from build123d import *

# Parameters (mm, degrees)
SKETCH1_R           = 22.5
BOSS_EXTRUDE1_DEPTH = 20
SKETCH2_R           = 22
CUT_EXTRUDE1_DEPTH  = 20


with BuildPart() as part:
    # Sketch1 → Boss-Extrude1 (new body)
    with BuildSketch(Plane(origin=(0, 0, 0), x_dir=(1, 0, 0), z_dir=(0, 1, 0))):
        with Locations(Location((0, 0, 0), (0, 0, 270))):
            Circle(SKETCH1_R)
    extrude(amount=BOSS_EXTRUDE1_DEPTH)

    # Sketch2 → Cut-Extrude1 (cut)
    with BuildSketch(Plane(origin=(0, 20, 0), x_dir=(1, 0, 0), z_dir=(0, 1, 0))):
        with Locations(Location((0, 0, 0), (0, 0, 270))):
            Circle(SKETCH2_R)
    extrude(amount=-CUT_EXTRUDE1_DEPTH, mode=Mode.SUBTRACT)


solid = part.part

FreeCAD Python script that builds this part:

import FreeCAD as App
import Part
import Sketcher
Q = App.Units.Quantity

doc = App.newDocument("Part")
body = doc.addObject("PartDesign::Body", "Body")

# Sketch on XZ plane
sketch1 = body.newObject("Sketcher::SketchObject", "Sketch")
sketch1.AttachmentSupport = (doc.getObject("XZ_Plane"), [""])
sketch1.MapMode = "FlatFace"
sketch1.addGeometry(Part.Circle(App.Vector(0, 0, 0), App.Vector(0, 0, 1), 22), False)
sketch1.addConstraint([
    Sketcher.Constraint("Coincident", 0, 3, -1, 1),
    Sketcher.Constraint("Diameter", 0, Q("45 mm")),
])
pad1 = body.newObject("PartDesign::Pad", "Pad")
pad1.Profile = sketch1
pad1.Length = 20
pad1.Reversed = True

# Sketch on XZ plane
sketch2 = body.newObject("Sketcher::SketchObject", "Sketch001")
sketch2.AttachmentSupport = (doc.getObject("XZ_Plane"), [""])
sketch2.MapMode = "FlatFace"
sketch2.AttachmentOffset = App.Placement(App.Vector(0, 0, -20), App.Rotation())
sketch2.addGeometry(Part.Circle(App.Vector(0, 0, 0), App.Vector(0, 0, 1), 22), False)
sketch2.addConstraint([
    Sketcher.Constraint("Coincident", 0, 3, -1, 1),
    Sketcher.Constraint("Diameter", 0, Q("44 mm")),
])
pocket1 = body.newObject("PartDesign::Pocket", "Pocket")
pocket1.Profile = sketch2
pocket1.Length = 20
pocket1.Reversed = True

doc.recompute()
